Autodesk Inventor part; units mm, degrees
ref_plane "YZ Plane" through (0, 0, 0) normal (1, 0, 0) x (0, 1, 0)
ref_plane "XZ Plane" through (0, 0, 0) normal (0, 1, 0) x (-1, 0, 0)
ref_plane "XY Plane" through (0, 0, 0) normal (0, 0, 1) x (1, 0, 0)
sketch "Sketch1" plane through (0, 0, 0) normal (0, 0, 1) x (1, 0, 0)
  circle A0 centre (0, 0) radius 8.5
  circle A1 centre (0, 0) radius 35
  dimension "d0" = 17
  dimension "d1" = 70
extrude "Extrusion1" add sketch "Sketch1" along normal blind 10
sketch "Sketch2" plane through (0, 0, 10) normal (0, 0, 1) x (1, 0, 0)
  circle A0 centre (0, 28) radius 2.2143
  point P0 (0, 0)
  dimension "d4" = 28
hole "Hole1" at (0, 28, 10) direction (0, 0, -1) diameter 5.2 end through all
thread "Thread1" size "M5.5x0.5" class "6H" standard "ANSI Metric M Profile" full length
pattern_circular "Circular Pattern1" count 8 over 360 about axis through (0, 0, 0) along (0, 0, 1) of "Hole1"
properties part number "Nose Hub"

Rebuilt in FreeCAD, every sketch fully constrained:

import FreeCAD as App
import Part
import Sketcher

V = App.Vector
Q = App.Units.Quantity

doc = App.newDocument("Part")
body = doc.addObject("PartDesign::Body", "Body")

# Sketch on XY plane
sketch1 = doc.addObject("Sketcher::SketchObject", "Sketch")
body.addObject(sketch1)
sketch1.AttachmentSupport = (doc.XY_Plane, [""])
sketch1.MapMode = "FlatFace"
sketch1.addGeometry([
    Part.Circle(V(0, 0, 0), V(0, 0, 1), 35),
    Part.Circle(V(0, 0, 0), V(0, 0, 1), 8.5),
], False)
sketch1.addConstraint([
    Sketcher.Constraint("Coincident", 0, 3, -1, 1),
    Sketcher.Constraint("Coincident", 1, 3, -1, 1),
    Sketcher.Constraint("Diameter", 0, Q("70 mm")),
    Sketcher.Constraint("Diameter", 1, Q("17 mm")),
])
pad1 = doc.addObject("PartDesign::Pad", "Pad")
body.addObject(pad1)
pad1.Profile = sketch1
pad1.Length = 10

# Sketch on XY plane
sketch2 = doc.addObject("Sketcher::SketchObject", "Sketch001")
body.addObject(sketch2)
sketch2.AttachmentSupport = (doc.XY_Plane, [""])
sketch2.MapMode = "FlatFace"
sketch2.AttachmentOffset = App.Placement(V(0, 0, 10), App.Rotation())
sketch2.addGeometry(Part.Circle(V(0, 28, 0), V(0, 0, 1), 2.6), False)
sketch2.addConstraint([
    Sketcher.Constraint("PointOnObject", 0, 3, -2),
    Sketcher.Constraint("Diameter", 0, Q("5.2 mm")),
    Sketcher.Constraint("DistanceY", -1, 1, 0, 3, Q("28 mm")),
])
doc.recompute()
hole = doc.addObject("PartDesign::Hole", "Hole")
body.addObject(hole)
hole.Profile = sketch2
hole.ThreadType = "None"
hole.Diameter = 5.2
hole.DepthType = "ThroughAll"
doc.recompute()

polarpattern = doc.addObject("PartDesign::PolarPattern", "PolarPattern")
body.addObject(polarpattern)
polarpattern.Originals = [hole]
polarpattern.Axis = (doc.Z_Axis, [""])
polarpattern.Angle = 360
polarpattern.Occurrences = 8
body.Tip = polarpattern

doc.recompute()
